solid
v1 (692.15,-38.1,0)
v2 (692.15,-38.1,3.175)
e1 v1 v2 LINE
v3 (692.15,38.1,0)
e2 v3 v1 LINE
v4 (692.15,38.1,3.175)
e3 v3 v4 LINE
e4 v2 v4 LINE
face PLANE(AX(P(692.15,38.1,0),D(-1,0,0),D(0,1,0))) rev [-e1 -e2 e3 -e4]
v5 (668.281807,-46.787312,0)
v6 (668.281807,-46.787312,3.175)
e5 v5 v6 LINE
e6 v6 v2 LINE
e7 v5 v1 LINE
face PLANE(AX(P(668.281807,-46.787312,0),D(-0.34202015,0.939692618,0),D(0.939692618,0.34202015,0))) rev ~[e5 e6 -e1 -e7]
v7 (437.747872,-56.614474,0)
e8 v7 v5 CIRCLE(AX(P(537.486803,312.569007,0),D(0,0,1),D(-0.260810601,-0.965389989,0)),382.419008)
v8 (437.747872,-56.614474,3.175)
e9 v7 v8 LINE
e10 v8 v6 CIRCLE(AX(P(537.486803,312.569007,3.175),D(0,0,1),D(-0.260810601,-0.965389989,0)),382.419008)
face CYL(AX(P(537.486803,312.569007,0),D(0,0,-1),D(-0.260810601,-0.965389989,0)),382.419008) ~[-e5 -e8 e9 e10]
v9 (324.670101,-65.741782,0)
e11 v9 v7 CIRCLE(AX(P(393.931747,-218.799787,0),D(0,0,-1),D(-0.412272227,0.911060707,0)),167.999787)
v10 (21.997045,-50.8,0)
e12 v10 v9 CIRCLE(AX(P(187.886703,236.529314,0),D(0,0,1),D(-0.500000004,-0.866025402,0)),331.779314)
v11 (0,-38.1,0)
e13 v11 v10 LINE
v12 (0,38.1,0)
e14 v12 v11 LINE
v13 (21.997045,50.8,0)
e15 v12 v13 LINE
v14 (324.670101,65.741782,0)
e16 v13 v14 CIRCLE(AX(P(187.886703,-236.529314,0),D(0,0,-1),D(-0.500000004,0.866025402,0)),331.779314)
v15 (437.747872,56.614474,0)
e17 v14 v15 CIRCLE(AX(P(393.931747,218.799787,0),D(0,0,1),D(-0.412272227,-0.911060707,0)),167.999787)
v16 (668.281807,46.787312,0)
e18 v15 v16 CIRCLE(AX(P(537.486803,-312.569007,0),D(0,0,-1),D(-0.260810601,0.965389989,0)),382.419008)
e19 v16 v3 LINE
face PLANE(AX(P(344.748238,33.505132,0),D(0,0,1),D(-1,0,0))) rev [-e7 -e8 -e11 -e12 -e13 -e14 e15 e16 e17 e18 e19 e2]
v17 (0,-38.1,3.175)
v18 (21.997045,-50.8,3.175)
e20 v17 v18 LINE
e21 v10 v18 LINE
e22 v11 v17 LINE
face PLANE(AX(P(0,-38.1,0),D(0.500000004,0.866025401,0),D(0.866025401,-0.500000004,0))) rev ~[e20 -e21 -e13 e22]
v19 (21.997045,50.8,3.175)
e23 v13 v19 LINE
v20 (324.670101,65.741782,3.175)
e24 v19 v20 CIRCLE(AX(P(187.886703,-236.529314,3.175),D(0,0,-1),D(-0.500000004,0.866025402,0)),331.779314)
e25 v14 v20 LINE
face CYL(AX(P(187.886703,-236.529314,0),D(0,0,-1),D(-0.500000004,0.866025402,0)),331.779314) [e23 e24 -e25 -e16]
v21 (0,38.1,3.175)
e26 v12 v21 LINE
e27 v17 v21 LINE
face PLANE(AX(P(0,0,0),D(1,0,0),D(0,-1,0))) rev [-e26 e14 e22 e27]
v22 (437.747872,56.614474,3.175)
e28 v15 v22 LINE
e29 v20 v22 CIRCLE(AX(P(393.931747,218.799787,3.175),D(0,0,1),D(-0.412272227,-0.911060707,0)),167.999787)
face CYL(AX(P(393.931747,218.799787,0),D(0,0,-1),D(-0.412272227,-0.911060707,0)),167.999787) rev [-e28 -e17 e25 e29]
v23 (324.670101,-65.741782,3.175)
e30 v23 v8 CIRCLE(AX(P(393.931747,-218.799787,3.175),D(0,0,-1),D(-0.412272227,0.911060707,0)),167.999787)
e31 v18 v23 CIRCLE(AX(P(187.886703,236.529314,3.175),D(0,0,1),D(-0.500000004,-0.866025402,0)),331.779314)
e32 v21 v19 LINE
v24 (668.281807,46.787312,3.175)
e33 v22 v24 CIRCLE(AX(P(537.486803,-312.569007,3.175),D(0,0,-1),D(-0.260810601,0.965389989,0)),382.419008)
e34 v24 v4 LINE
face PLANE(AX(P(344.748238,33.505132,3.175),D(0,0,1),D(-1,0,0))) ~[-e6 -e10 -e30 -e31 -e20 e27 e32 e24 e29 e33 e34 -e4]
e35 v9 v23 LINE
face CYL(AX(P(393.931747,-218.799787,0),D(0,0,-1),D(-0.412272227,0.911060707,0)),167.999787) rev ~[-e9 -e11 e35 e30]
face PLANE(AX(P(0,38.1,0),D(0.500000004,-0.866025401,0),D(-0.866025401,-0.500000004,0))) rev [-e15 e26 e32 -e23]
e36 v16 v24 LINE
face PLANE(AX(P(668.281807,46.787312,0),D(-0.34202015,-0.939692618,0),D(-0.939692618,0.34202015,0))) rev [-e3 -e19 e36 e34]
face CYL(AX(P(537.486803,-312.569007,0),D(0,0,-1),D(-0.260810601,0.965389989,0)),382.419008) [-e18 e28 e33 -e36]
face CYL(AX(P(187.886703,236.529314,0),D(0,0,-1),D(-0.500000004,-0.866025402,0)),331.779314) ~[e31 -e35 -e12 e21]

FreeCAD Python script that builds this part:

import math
import FreeCAD as App
import Part
import Sketcher
from FreeCAD import Vector
Q = App.Units.Quantity

doc = App.newDocument("Part")
body = doc.addObject("PartDesign::Body", "Body")

sketch1 = doc.addObject("Sketcher::SketchObject", "Sketch")
body.addObject(sketch1)
sketch1.AttachmentSupport = (doc.XY_Plane, [""])
sketch1.MapMode = "FlatFace"
sketch1.addGeometry([
    Part.LineSegment(Vector(692, 0, 0), Vector(0, 0, 0)),
    Part.LineSegment(Vector(0, 0, 0), Vector(0, -38, 0)),
    Part.LineSegment(Vector(0, -38, 0), Vector(22, -51, 0)),
    Part.ArcOfCircle(Part.Circle(Vector(188, 237, 0), Vector(0, 0, 1), 332), math.radians(-120), math.radians(-66)),
    Part.ArcOfCircle(Part.Circle(Vector(394, -219, 0), Vector(0, 0, 1), 168), math.radians(75), math.radians(114)),
    Part.ArcOfCircle(Part.Circle(Vector(537, 313, 0), Vector(0, 0, 1), 382), math.radians(-105), math.radians(-70)),
    Part.LineSegment(Vector(668, -47, 0), Vector(692, -38, 0)),
    Part.LineSegment(Vector(692, -38, 0), Vector(692, 0, 0)),
], False)
sketch1.addConstraint([
    Sketcher.Constraint("Coincident", 0, 2, 1, 1),
    Sketcher.Constraint("Coincident", 1, 2, 2, 1),
    Sketcher.Constraint("Tangent", 2, 2, 3, 1),
    Sketcher.Constraint("Tangent", 3, 2, 4, 2),
    Sketcher.Constraint("Tangent", 4, 1, 5, 1),
    Sketcher.Constraint("Tangent", 5, 2, 6, 1),
    Sketcher.Constraint("Coincident", 6, 2, 7, 1),
    Sketcher.Constraint("Coincident", 7, 2, 0, 1),
    Sketcher.Constraint("Horizontal", 0),
    Sketcher.Constraint("Vertical", 1),
    Sketcher.Constraint("Vertical", 7),
    Sketcher.Constraint("Coincident", 0, 2, -1, 1),
    Sketcher.Constraint("Horizontal", 1, 2, 6, 2),
    Sketcher.Constraint("Equal", 2, 6),
    Sketcher.Constraint("Distance", 2, Q("1 in")),
    Sketcher.Constraint("DistanceY", 1, 2, 1, 1, Q("1.5 in")),
    Sketcher.Constraint("DistanceY", 2, 2, -1, 1, Q("2 in")),
    Sketcher.Constraint("Angle", 6, Q("20 deg")),
    Sketcher.Constraint("DistanceX", 0, 2, 0, 1, Q("27.25 in")),
    Sketcher.Constraint("Radius", 3, 331.779314),
    Sketcher.Constraint("Radius", 4, 167.999787),
    Sketcher.Constraint("Radius", 5, 382.419008),
])
pad1 = doc.addObject("PartDesign::Pad", "Pad")
body.addObject(pad1)
pad1.Profile = sketch1
pad1.Length = Q("0.125 in")
body2 = doc.addObject("PartDesign::Body", "Body001")
doc.recompute()

body2.BaseFeature = body
doc.recompute()

mirroring = doc.addObject("Part::Mirroring", "Mirroring")
mirroring.Source = body
mirroring.Base = Vector(0, 0, 0)
mirroring.Normal = Vector(0, -1, 0)
body3 = doc.addObject("PartDesign::Body", "Body002")
body3.BaseFeature = mirroring
boolean = doc.addObject("PartDesign::Boolean", "Boolean")
body2.addObject(boolean)
boolean.Type = "Fuse"
boolean.addObjects([body3])
doc.recompute()
mirroring.Visibility = False

doc.recompute()
